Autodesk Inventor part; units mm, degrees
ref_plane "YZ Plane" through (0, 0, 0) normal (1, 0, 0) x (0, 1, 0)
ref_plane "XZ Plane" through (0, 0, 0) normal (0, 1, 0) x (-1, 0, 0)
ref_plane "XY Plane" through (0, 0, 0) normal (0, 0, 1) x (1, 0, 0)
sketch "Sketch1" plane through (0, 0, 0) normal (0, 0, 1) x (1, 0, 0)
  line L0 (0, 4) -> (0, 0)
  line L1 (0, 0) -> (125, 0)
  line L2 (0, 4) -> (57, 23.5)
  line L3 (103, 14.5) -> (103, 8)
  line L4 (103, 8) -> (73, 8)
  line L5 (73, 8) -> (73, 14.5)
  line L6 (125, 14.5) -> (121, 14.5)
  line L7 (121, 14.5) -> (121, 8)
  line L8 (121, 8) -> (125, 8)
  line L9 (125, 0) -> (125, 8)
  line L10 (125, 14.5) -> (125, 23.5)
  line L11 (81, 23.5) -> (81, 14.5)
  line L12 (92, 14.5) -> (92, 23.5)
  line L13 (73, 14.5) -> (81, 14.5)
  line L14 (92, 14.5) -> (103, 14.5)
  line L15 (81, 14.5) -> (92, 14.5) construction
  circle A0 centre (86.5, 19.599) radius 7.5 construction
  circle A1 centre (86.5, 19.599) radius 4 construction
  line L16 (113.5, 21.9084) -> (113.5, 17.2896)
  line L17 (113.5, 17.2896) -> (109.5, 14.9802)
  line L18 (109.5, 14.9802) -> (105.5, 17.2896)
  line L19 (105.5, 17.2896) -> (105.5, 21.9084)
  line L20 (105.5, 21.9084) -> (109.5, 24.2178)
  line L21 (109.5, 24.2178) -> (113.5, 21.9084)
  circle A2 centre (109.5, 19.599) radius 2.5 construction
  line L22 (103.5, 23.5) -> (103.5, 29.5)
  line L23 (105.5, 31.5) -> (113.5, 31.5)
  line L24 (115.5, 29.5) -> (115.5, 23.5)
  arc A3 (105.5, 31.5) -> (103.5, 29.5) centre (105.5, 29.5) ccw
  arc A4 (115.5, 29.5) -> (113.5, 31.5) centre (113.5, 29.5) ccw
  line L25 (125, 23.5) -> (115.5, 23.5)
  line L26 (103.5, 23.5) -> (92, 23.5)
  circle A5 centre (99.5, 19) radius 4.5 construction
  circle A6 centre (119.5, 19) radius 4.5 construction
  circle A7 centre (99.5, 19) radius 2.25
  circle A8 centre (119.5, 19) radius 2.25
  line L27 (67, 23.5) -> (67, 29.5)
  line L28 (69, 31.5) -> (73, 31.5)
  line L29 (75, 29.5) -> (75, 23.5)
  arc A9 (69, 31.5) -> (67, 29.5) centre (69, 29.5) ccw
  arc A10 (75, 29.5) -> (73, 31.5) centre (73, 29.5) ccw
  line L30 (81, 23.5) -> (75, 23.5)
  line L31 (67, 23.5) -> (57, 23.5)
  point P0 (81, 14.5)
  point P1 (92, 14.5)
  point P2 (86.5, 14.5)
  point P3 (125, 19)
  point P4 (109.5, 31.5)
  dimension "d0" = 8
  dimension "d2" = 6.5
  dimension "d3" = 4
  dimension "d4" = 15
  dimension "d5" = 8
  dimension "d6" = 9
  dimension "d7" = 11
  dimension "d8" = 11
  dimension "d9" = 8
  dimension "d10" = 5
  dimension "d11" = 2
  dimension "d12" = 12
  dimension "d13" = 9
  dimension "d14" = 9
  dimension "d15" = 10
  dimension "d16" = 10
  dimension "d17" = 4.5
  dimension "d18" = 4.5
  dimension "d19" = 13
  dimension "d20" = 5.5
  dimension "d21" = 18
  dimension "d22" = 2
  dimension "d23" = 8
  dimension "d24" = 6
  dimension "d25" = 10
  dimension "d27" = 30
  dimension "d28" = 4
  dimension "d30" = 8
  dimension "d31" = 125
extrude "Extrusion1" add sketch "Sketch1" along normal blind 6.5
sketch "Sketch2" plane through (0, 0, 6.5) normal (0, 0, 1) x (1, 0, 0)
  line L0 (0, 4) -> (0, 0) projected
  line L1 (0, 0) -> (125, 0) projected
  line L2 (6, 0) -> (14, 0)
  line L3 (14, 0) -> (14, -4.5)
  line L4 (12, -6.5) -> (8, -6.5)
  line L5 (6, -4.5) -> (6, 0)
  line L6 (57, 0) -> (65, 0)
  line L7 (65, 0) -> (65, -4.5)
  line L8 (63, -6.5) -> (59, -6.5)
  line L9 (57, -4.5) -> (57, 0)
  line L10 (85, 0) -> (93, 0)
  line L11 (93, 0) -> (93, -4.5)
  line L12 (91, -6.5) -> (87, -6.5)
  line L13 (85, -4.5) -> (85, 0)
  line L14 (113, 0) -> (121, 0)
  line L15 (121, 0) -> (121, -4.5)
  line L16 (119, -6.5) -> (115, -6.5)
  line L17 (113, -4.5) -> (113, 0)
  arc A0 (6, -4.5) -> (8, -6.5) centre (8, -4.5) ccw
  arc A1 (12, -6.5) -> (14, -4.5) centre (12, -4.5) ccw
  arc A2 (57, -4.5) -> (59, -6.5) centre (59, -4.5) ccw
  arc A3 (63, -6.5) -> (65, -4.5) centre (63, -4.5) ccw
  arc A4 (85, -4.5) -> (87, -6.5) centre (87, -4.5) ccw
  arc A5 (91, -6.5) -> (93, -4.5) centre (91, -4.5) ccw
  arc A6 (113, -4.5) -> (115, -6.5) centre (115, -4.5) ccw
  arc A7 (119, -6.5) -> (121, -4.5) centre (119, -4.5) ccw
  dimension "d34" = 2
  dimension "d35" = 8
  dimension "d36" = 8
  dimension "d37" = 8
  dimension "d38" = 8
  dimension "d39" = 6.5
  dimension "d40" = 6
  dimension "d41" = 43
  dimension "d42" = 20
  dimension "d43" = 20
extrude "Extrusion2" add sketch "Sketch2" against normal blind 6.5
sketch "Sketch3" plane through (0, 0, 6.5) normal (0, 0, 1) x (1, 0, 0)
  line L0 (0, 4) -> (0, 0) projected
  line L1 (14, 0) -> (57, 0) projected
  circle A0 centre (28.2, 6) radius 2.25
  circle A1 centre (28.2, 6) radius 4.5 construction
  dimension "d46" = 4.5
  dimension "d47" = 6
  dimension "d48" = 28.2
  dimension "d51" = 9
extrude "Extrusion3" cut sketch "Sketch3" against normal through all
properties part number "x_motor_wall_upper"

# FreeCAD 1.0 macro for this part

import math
import FreeCAD as App
import Part
import Sketcher

V = App.Vector
Q = App.Units.Quantity

doc = App.newDocument("Part")
params = doc.addObject("Spreadsheet::Sheet", "Params")
for row, (alias, value) in enumerate([
    ("sketch1_radius", "2 mm"),
    ("sketch1_diameter", "4.5 mm"),
    ("sketch1_width", "125 mm"),
    ("sketch1_width2", "4 mm"),
    ("sketch1_width3", "8 mm"),
    ("pad1_length", "6.5 mm"),
    ("sketch2_radius", "2 mm"),
    ("sketch2_width", "8 mm"),
    ("pad2_length", "6.5 mm"),
    ("sketch3_diameter", "4.5 mm"),
], start=1):
    params.set(f"A{row}", alias)
    params.set(f"B{row}", "=" + value)
    params.setAlias(f"B{row}", alias)

body = doc.addObject("PartDesign::Body", "Body")

sketch1 = body.newObject("Sketcher::SketchObject", "Sketch")
sketch1.AttachmentSupport = (doc.getObject("XY_Plane"), [""])
sketch1.MapMode = "FlatFace"
sketch1.addGeometry(Part.LineSegment(V(57, 23.5, 0), V(0, 4, 0)), False)
sketch1.addGeometry(Part.LineSegment(V(0, 4, 0), V(0, 0, 0)), False)
sketch1.addGeometry(Part.LineSegment(V(0, 0, 0), V(125, 0, 0)), False)
sketch1.addGeometry(Part.LineSegment(V(125, 0, 0), V(125, 8, 0)), False)
sketch1.addGeometry(Part.LineSegment(V(125, 8, 0), V(121, 8, 0)), False)
sketch1.addGeometry(Part.LineSegment(V(121, 8, 0), V(121, 14.5, 0)), False)
sketch1.addGeometry(Part.LineSegment(V(121, 14.5, 0), V(125, 14.5, 0)), False)
sketch1.addGeometry(Part.LineSegment(V(125, 14.5, 0), V(125, 23.5, 0)), False)
sketch1.addGeometry(Part.LineSegment(V(125, 23.5, 0), V(115.5, 23.5, 0)), False)
sketch1.addGeometry(Part.LineSegment(V(115.5, 23.5, 0), V(115.5, 29.5, 0)), False)
sketch1.addGeometry(Part.ArcOfCircle(Part.Circle(V(113.5, 29.5, 0), V(0, 0, 1), 2), math.radians(0), math.radians(90)), False)
sketch1.addGeometry(Part.LineSegment(V(113.5, 31.5, 0), V(105.5, 31.5, 0)), False)
sketch1.addGeometry(Part.ArcOfCircle(Part.Circle(V(105.5, 29.5, 0), V(0, 0, 1), 2), math.radians(90), math.radians(180)), False)
sketch1.addGeometry(Part.LineSegment(V(103.5, 29.5, 0), V(103.5, 23.5, 0)), False)
sketch1.addGeometry(Part.LineSegment(V(103.5, 23.5, 0), V(92, 23.5, 0)), False)
sketch1.addGeometry(Part.LineSegment(V(92, 23.5, 0), V(92, 14.5, 0)), False)
sketch1.addGeometry(Part.LineSegment(V(92, 14.5, 0), V(103, 14.5, 0)), False)
sketch1.addGeometry(Part.LineSegment(V(103, 14.5, 0), V(103, 8, 0)), False)
sketch1.addGeometry(Part.LineSegment(V(103, 8, 0), V(73, 8, 0)), False)
sketch1.addGeometry(Part.LineSegment(V(73, 8, 0), V(73, 14.5, 0)), False)
sketch1.addGeometry(Part.LineSegment(V(73, 14.5, 0), V(81, 14.5, 0)), False)
sketch1.addGeometry(Part.LineSegment(V(81, 14.5, 0), V(81, 23.5, 0)), False)
sketch1.addGeometry(Part.LineSegment(V(81, 23.5, 0), V(75, 23.5, 0)), False)
sketch1.addGeometry(Part.LineSegment(V(75, 23.5, 0), V(75, 29.5, 0)), False)
sketch1.addGeometry(Part.ArcOfCircle(Part.Circle(V(73, 29.5, 0), V(0, 0, 1), 2), math.radians(0), math.radians(90)), False)
sketch1.addGeometry(Part.LineSegment(V(73, 31.5, 0), V(69, 31.5, 0)), False)
sketch1.addGeometry(Part.ArcOfCircle(Part.Circle(V(69, 29.5, 0), V(0, 0, 1), 2), math.radians(90), math.radians(180)), False)
sketch1.addGeometry(Part.LineSegment(V(67, 29.5, 0), V(67, 23.5, 0)), False)
sketch1.addGeometry(Part.LineSegment(V(67, 23.5, 0), V(57, 23.5, 0)), False)
sketch1.addGeometry(Part.Circle(V(99.5, 19, 0), V(0, 0, 1), 2.2), False)
sketch1.addGeometry(Part.LineSegment(V(109.5, 24.2, 0), V(113.5, 21.9, 0)), False)
sketch1.addGeometry(Part.LineSegment(V(113.5, 21.9, 0), V(113.5, 17.3, 0)), False)
sketch1.addGeometry(Part.LineSegment(V(113.5, 17.3, 0), V(109.5, 15, 0)), False)
sketch1.addGeometry(Part.LineSegment(V(109.5, 15, 0), V(105.5, 17.3, 0)), False)
sketch1.addGeometry(Part.LineSegment(V(105.5, 17.3, 0), V(105.5, 21.9, 0)), False)
sketch1.addGeometry(Part.LineSegment(V(105.5, 21.9, 0), V(109.5, 24.2, 0)), False)
sketch1.addGeometry(Part.Circle(V(119.5, 19, 0), V(0, 0, 1), 2.2), False)
sketch1.addConstraint(Sketcher.Constraint("Coincident", 0, 2, 1, 1))
sketch1.addConstraint(Sketcher.Constraint("Coincident", 1, 2, 2, 1))
sketch1.addConstraint(Sketcher.Constraint("Coincident", 2, 2, 3, 1))
sketch1.addConstraint(Sketcher.Constraint("Coincident", 3, 2, 4, 1))
sketch1.addConstraint(Sketcher.Constraint("Coincident", 4, 2, 5, 1))
sketch1.addConstraint(Sketcher.Constraint("Coincident", 5, 2, 6, 1))
sketch1.addConstraint(Sketcher.Constraint("Coincident", 6, 2, 7, 1))
sketch1.addConstraint(Sketcher.Constraint("Coincident", 7, 2, 8, 1))
sketch1.addConstraint(Sketcher.Constraint("Coincident", 8, 2, 9, 1))
sketch1.addConstraint(Sketcher.Constraint("Tangent", 9, 2, 10, 1))
sketch1.addConstraint(Sketcher.Constraint("Tangent", 10, 2, 11, 1))
sketch1.addConstraint(Sketcher.Constraint("Tangent", 11, 2, 12, 1))
sketch1.addConstraint(Sketcher.Constraint("Tangent", 12, 2, 13, 1))
sketch1.addConstraint(Sketcher.Constraint("Coincident", 13, 2, 14, 1))
sketch1.addConstraint(Sketcher.Constraint("Coincident", 14, 2, 15, 1))
sketch1.addConstraint(Sketcher.Constraint("Coincident", 15, 2, 16, 1))
sketch1.addConstraint(Sketcher.Constraint("Coincident", 16, 2, 17, 1))
sketch1.addConstraint(Sketcher.Constraint("Coincident", 17, 2, 18, 1))
sketch1.addConstraint(Sketcher.Constraint("Coincident", 18, 2, 19, 1))
sketch1.addConstraint(Sketcher.Constraint("Coincident", 19, 2, 20, 1))
sketch1.addConstraint(Sketcher.Constraint("Coincident", 20, 2, 21, 1))
sketch1.addConstraint(Sketcher.Constraint("Coincident", 21, 2, 22, 1))
sketch1.addConstraint(Sketcher.Constraint("Coincident", 22, 2, 23, 1))
sketch1.addConstraint(Sketcher.Constraint("Tangent", 23, 2, 24, 1))
sketch1.addConstraint(Sketcher.Constraint("Tangent", 24, 2, 25, 1))
sketch1.addConstraint(Sketcher.Constraint("Tangent", 25, 2, 26, 1))
sketch1.addConstraint(Sketcher.Constraint("Tangent", 26, 2, 27, 1))
sketch1.addConstraint(Sketcher.Constraint("Coincident", 27, 2, 28, 1))
sketch1.addConstraint(Sketcher.Constraint("Coincident", 28, 2, 0, 1))
sketch1.addConstraint(Sketcher.Constraint("Coincident", 30, 2, 31, 1))
sketch1.addConstraint(Sketcher.Constraint("Coincident", 31, 2, 32, 1))
sketch1.addConstraint(Sketcher.Constraint("Coincident", 32, 2, 33, 1))
sketch1.addConstraint(Sketcher.Constraint("Coincident", 33, 2, 34, 1))
sketch1.addConstraint(Sketcher.Constraint("Coincident", 34, 2, 35, 1))
sketch1.addConstraint(Sketcher.Constraint("Coincident", 35, 2, 30, 1))
sketch1.addConstraint(Sketcher.Constraint("Vertical", 1))
sketch1.addConstraint(Sketcher.Constraint("Horizontal", 2))
sketch1.addConstraint(Sketcher.Constraint("Vertical", 3))
sketch1.addConstraint(Sketcher.Constraint("Horizontal", 4))
sketch1.addConstraint(Sketcher.Constraint("Vertical", 5))
sketch1.addConstraint(Sketcher.Constraint("Horizontal", 6))
sketch1.addConstraint(Sketcher.Constraint("Vertical", 7))
sketch1.addConstraint(Sketcher.Constraint("Horizontal", 8))
sketch1.addConstraint(Sketcher.Constraint("Vertical", 9))
sketch1.addConstraint(Sketcher.Constraint("Horizontal", 11))
sketch1.addConstraint(Sketcher.Constraint("Vertical", 13))
sketch1.addConstraint(Sketcher.Constraint("Horizontal", 14))
sketch1.addConstraint(Sketcher.Constraint("Vertical", 15))
sketch1.addConstraint(Sketcher.Constraint("Horizontal", 16))
sketch1.addConstraint(Sketcher.Constraint("Vertical", 17))
sketch1.addConstraint(Sketcher.Constraint("Horizontal", 18))
sketch1.addConstraint(Sketcher.Constraint("Vertical", 19))
sketch1.addConstraint(Sketcher.Constraint("Horizontal", 20))
sketch1.addConstraint(Sketcher.Constraint("Vertical", 21))
sketch1.addConstraint(Sketcher.Constraint("Horizontal", 22))
sketch1.addConstraint(Sketcher.Constraint("Vertical", 23))
sketch1.addConstraint(Sketcher.Constraint("Horizontal", 25))
sketch1.addConstraint(Sketcher.Constraint("Vertical", 27))
sketch1.addConstraint(Sketcher.Constraint("Horizontal", 28))
sketch1.addConstraint(Sketcher.Constraint("Vertical", 31))
sketch1.addConstraint(Sketcher.Constraint("Vertical", 34))
sketch1.addConstraint(Sketcher.Constraint("Coincident", 1, 2, -1, 1))
sketch1.addConstraint(Sketcher.Constraint("Equal", 10, 12))
sketch1.addConstraint(Sketcher.Constraint("Equal", 12, 24))
sketch1.addConstraint(Sketcher.Constraint("Equal", 24, 26))
sketch1.addConstraint(Sketcher.Constraint("Equal", 29, 36))
sketch1.addConstraint(Sketcher.Constraint("Parallel", 30, 33))
sketch1.addConstraint(Sketcher.Constraint("Parallel", 32, 35))
sketch1.addConstraint(Sketcher.Constraint("Horizontal", 12, 3, 24, 3))
sketch1.addConstraint(Sketcher.Constraint("Horizontal", 29, 3, 36, 3))
sketch1.addConstraint(Sketcher.Constraint("Horizontal", 8, 2, 13, 2))
sketch1.addConstraint(Sketcher.Constraint("Horizontal", 6, 2, 15, 2))
sketch1.addConstraint(Sketcher.Constraint("Horizontal", 4, 2, 17, 2))
sketch1.addConstraint(Sketcher.Constraint("Horizontal", 16, 2, 19, 2))
sketch1.addConstraint(Sketcher.Constraint("Horizontal", 14, 2, 21, 2))
sketch1.addConstraint(Sketcher.Constraint("Horizontal", 22, 2, 27, 2))
sketch1.addConstraint(Sketcher.Constraint("Horizontal", 31, 2, 33, 2))
sketch1.addConstraint(Sketcher.Constraint("Horizontal", 30, 2, 34, 2))
sketch1.addConstraint(Sketcher.Constraint("Vertical", 3, 2, 6, 2))
sketch1.addConstraint(Sketcher.Constraint("Vertical", 24, 3, 18, 2))
sketch1.addConstraint(Sketcher.Constraint("Vertical", 10, 2, 30, 2))
sketch1.addConstraint(Sketcher.Constraint("Vertical", 11, 2, 33, 2))
sketch1.addConstraint(Sketcher.Constraint("Vertical", 32, 2, 35, 2))
sketch1.addConstraint(Sketcher.Constraint("Equal", 11, 20))
sketch1.addConstraint(Sketcher.Constraint("Equal", 6, 25))
sketch1.addConstraint(Sketcher.Constraint("Equal", 25, 1))
sketch1.addConstraint(Sketcher.Constraint("Equal", 20, 3))
sketch1.addConstraint(Sketcher.Constraint("Equal", 22, 9))
sketch1.addConstraint(Sketcher.Constraint("Radius", 10, Q("2 mm")))
sketch1.addConstraint(Sketcher.Constraint("Diameter", 29, Q("4.5 mm")))
sketch1.addConstraint(Sketcher.Constraint("DistanceX", 2, 1, 2, 2, Q("125 mm")))
sketch1.addConstraint(Sketcher.Constraint("DistanceX", 4, 2, 4, 1, Q("4 mm")))
sketch1.addConstraint(Sketcher.Constraint("DistanceX", 11, 2, 11, 1, Q("8 mm")))
sketch1.addConstraint(Sketcher.Constraint("DistanceX", 16, 1, 16, 2, Q("11 mm")))
sketch1.addConstraint(Sketcher.Constraint("DistanceX", 18, 2, 18, 1, Q("30 mm")))
sketch1.addConstraint(Sketcher.Constraint("DistanceX", 28, 2, 28, 1, Q("10 mm")))
sketch1.addConstraint(Sketcher.Constraint("DistanceY", 7, 1, 7, 2, Q("9 mm")))
sketch1.addConstraint(Sketcher.Constraint("Angle", 30, Q("-30 deg")))
sketch1.addConstraint(Sketcher.Constraint("DistanceY", 5, 1, 5, 2, Q("6.5 mm")))
sketch1.addConstraint(Sketcher.Constraint("DistanceX", 29, 3, 12, 3, Q("6 mm")))
sketch1.addConstraint(Sketcher.Constraint("DistanceX", 10, 3, 36, 3, Q("6 mm")))
sketch1.addConstraint(Sketcher.Constraint("DistanceY", 0, 2, 29, 3, Q("15 mm")))
sketch1.addConstraint(Sketcher.Constraint("DistanceX", 17, 2, 4, 2, Q("18 mm")))
sketch1.addConstraint(Sketcher.Constraint("DistanceX", 36, 3, 2, 2, Q("5.5 mm")))
sketch1.addConstraint(Sketcher.Constraint("DistanceY", 31, 2, 31, 1, Q("4.6188 mm")))
sketch1.addConstraint(Sketcher.Constraint("DistanceY", -1, 1, 30, 2, Q("21.9084 mm")))
sketch1.setExpression("Constraints[88]", "Params.sketch1_radius")
sketch1.setExpression("Constraints[89]", "Params.sketch1_diameter")
sketch1.setExpression("Constraints[90]", "Params.sketch1_width")
sketch1.setExpression("Constraints[91]", "Params.sketch1_width2")
sketch1.setExpression("Constraints[92]", "Params.sketch1_width3")
pad1 = body.newObject("PartDesign::Pad", "Pad")
pad1.Profile = sketch1
pad1.setExpression("Length", "Params.pad1_length")

sketch2 = body.newObject("Sketcher::SketchObject", "Sketch001")
sketch2.AttachmentSupport = (doc.getObject("XY_Plane"), [""])
sketch2.MapMode = "FlatFace"
sketch2.AttachmentOffset = App.Placement(V(0, 0, 6.5), App.Rotation())
sketch2.addGeometry(Part.LineSegment(V(121, 0, 0), V(113, 0, 0)), False)
sketch2.addGeometry(Part.LineSegment(V(113, 0, 0), V(113, -4.5, 0)), False)
sketch2.addGeometry(Part.ArcOfCircle(Part.Circle(V(115, -4.5, 0), V(0, 0, 1), 2), math.radians(180), math.radians(270)), False)
sketch2.addGeometry(Part.LineSegment(V(115, -6.5, 0), V(119, -6.5, 0)), False)
sketch2.addGeometry(Part.ArcOfCircle(Part.Circle(V(119, -4.5, 0), V(0, 0, 1), 2), math.radians(-90), math.radians(0)), False)
sketch2.addGeometry(Part.LineSegment(V(121, -4.5, 0), V(121, 0, 0)), False)
sketch2.addGeometry(Part.LineSegment(V(93, 0, 0), V(85, 0, 0)), False)
sketch2.addGeometry(Part.LineSegment(V(85, 0, 0), V(85, -4.5, 0)), False)
sketch2.addGeometry(Part.ArcOfCircle(Part.Circle(V(87, -4.5, 0), V(0, 0, 1), 2), math.radians(180), math.radians(270)), False)
sketch2.addGeometry(Part.LineSegment(V(87, -6.5, 0), V(91, -6.5, 0)), False)
sketch2.addGeometry(Part.ArcOfCircle(Part.Circle(V(91, -4.5, 0), V(0, 0, 1), 2), math.radians(-90), math.radians(0)), False)
sketch2.addGeometry(Part.LineSegment(V(93, -4.5, 0), V(93, 0, 0)), False)
sketch2.addGeometry(Part.LineSegment(V(65, 0, 0), V(57, 0, 0)), False)
sketch2.addGeometry(Part.LineSegment(V(57, 0, 0), V(57, -4.5, 0)), False)
sketch2.addGeometry(Part.ArcOfCircle(Part.Circle(V(59, -4.5, 0), V(0, 0, 1), 2), math.radians(180), math.radians(270)), False)
sketch2.addGeometry(Part.LineSegment(V(59, -6.5, 0), V(63, -6.5, 0)), False)
sketch2.addGeometry(Part.ArcOfCircle(Part.Circle(V(63, -4.5, 0), V(0, 0, 1), 2), math.radians(-90), math.radians(0)), False)
sketch2.addGeometry(Part.LineSegment(V(65, -4.5, 0), V(65, 0, 0)), False)
sketch2.addGeometry(Part.LineSegment(V(14, 0, 0), V(6, 0, 0)), False)
sketch2.addGeometry(Part.LineSegment(V(6, 0, 0), V(6, -4.5, 0)), False)
sketch2.addGeometry(Part.ArcOfCircle(Part.Circle(V(8, -4.5, 0), V(0, 0, 1), 2), math.radians(180), math.radians(270)), False)
sketch2.addGeometry(Part.LineSegment(V(8, -6.5, 0), V(12, -6.5, 0)), False)
sketch2.addGeometry(Part.ArcOfCircle(Part.Circle(V(12, -4.5, 0), V(0, 0, 1), 2), math.radians(-90), math.radians(0)), False)
sketch2.addGeometry(Part.LineSegment(V(14, -4.5, 0), V(14, 0, 0)), False)
sketch2.addConstraint(Sketcher.Constraint("Coincident", 0, 2, 1, 1))
sketch2.addConstraint(Sketcher.Constraint("Tangent", 1, 2, 2, 1))
sketch2.addConstraint(Sketcher.Constraint("Tangent", 2, 2, 3, 1))
sketch2.addConstraint(Sketcher.Constraint("Tangent", 3, 2, 4, 1))
sketch2.addConstraint(Sketcher.Constraint("Tangent", 4, 2, 5, 1))
sketch2.addConstraint(Sketcher.Constraint("Coincident", 5, 2, 0, 1))
sketch2.addConstraint(Sketcher.Constraint("Coincident", 6, 2, 7, 1))
sketch2.addConstraint(Sketcher.Constraint("Tangent", 7, 2, 8, 1))
sketch2.addConstraint(Sketcher.Constraint("Tangent", 8, 2, 9, 1))
sketch2.addConstraint(Sketcher.Constraint("Tangent", 9, 2, 10, 1))
sketch2.addConstraint(Sketcher.Constraint("Tangent", 10, 2, 11, 1))
sketch2.addConstraint(Sketcher.Constraint("Coincident", 11, 2, 6, 1))
sketch2.addConstraint(Sketcher.Constraint("Coincident", 12, 2, 13, 1))
sketch2.addConstraint(Sketcher.Constraint("Tangent", 13, 2, 14, 1))
sketch2.addConstraint(Sketcher.Constraint("Tangent", 14, 2, 15, 1))
sketch2.addConstraint(Sketcher.Constraint("Tangent", 15, 2, 16, 1))
sketch2.addConstraint(Sketcher.Constraint("Tangent", 16, 2, 17, 1))
sketch2.addConstraint(Sketcher.Constraint("Coincident", 17, 2, 12, 1))
sketch2.addConstraint(Sketcher.Constraint("Coincident", 18, 2, 19, 1))
sketch2.addConstraint(Sketcher.Constraint("Tangent", 19, 2, 20, 1))
sketch2.addConstraint(Sketcher.Constraint("Tangent", 20, 2, 21, 1))
sketch2.addConstraint(Sketcher.Constraint("Tangent", 21, 2, 22, 1))
sketch2.addConstraint(Sketcher.Constraint("Tangent", 22, 2, 23, 1))
sketch2.addConstraint(Sketcher.Constraint("Coincident", 23, 2, 18, 1))
sketch2.addConstraint(Sketcher.Constraint("Horizontal", 0))
sketch2.addConstraint(Sketcher.Constraint("Vertical", 1))
sketch2.addConstraint(Sketcher.Constraint("Horizontal", 3))
sketch2.addConstraint(Sketcher.Constraint("Vertical", 5))
sketch2.addConstraint(Sketcher.Constraint("Horizontal", 6))
sketch2.addConstraint(Sketcher.Constraint("Vertical", 7))
sketch2.addConstraint(Sketcher.Constraint("Horizontal", 9))
sketch2.addConstraint(Sketcher.Constraint("Vertical", 11))
sketch2.addConstraint(Sketcher.Constraint("Horizontal", 12))
sketch2.addConstraint(Sketcher.Constraint("Vertical", 13))
sketch2.addConstraint(Sketcher.Constraint("Horizontal", 15))
sketch2.addConstraint(Sketcher.Constraint("Vertical", 17))
sketch2.addConstraint(Sketcher.Constraint("Horizontal", 18))
sketch2.addConstraint(Sketcher.Constraint("Vertical", 19))
sketch2.addConstraint(Sketcher.Constraint("Horizontal", 21))
sketch2.addConstraint(Sketcher.Constraint("Vertical", 23))
sketch2.addConstraint(Sketcher.Constraint("Equal", 2, 4))
sketch2.addConstraint(Sketcher.Constraint("Equal", 4, 8))
sketch2.addConstraint(Sketcher.Constraint("Equal", 8, 10))
sketch2.addConstraint(Sketcher.Constraint("Equal", 10, 14))
sketch2.addConstraint(Sketcher.Constraint("Equal", 14, 16))
sketch2.addConstraint(Sketcher.Constraint("Equal", 16, 20))
sketch2.addConstraint(Sketcher.Constraint("Equal", 20, 22))
sketch2.addConstraint(Sketcher.Constraint("PointOnObject", 0, 2, -1))
sketch2.addConstraint(Sketcher.Constraint("PointOnObject", 6, 2, -1))
sketch2.addConstraint(Sketcher.Constraint("PointOnObject", 12, 2, -1))
sketch2.addConstraint(Sketcher.Constraint("PointOnObject", 18, 2, -1))
sketch2.addConstraint(Sketcher.Constraint("Horizontal", 4, 3, 8, 3))
sketch2.addConstraint(Sketcher.Constraint("Horizontal", 10, 3, 14, 3))
sketch2.addConstraint(Sketcher.Constraint("Horizontal", 16, 3, 20, 3))
sketch2.addConstraint(Sketcher.Constraint("Equal", 0, 6))
sketch2.addConstraint(Sketcher.Constraint("Equal", 6, 12))
sketch2.addConstraint(Sketcher.Constraint("Equal", 12, 18))
sketch2.addConstraint(Sketcher.Constraint("Radius", 2, Q("2 mm")))
sketch2.addConstraint(Sketcher.Constraint("DistanceX", 0, 2, 0, 1, Q("8 mm")))
sketch2.addConstraint(Sketcher.Constraint("DistanceX", -1, 1, 20, 3, Q("8 mm")))
sketch2.addConstraint(Sketcher.Constraint("DistanceY", 2, 2, -1, 1, Q("6.5 mm")))
sketch2.addConstraint(Sketcher.Constraint("DistanceX", -1, 1, 2, 3, Q("115 mm")))
sketch2.addConstraint(Sketcher.Constraint("DistanceX", -1, 1, 8, 3, Q("87 mm")))
sketch2.addConstraint(Sketcher.Constraint("DistanceX", -1, 1, 14, 3, Q("59 mm")))
sketch2.setExpression("Constraints[57]", "Params.sketch2_radius")
sketch2.setExpression("Constraints[58]", "Params.sketch2_width")
pad2 = body.newObject("PartDesign::Pad", "Pad001")
pad2.Profile = sketch2
pad2.setExpression("Length", "Params.pad2_length")
pad2.Reversed = True

sketch3 = body.newObject("Sketcher::SketchObject", "Sketch002")
sketch3.AttachmentSupport = (doc.getObject("XY_Plane"), [""])
sketch3.MapMode = "FlatFace"
sketch3.AttachmentOffset = App.Placement(V(0, 0, 6.5), App.Rotation())
sketch3.addGeometry(Part.Circle(V(28.2, 6, 0), V(0, 0, 1), 2.2), False)
sketch3.addConstraint(Sketcher.Constraint("Diameter", 0, Q("4.5 mm")))
sketch3.addConstraint(Sketcher.Constraint("DistanceY", -1, 1, 0, 3, Q("6 mm")))
sketch3.addConstraint(Sketcher.Constraint("DistanceX", -1, 1, 0, 3, Q("28.2 mm")))
sketch3.setExpression("Constraints[0]", "Params.sketch3_diameter")
pocket1 = body.newObject("PartDesign::Pocket", "Pocket")
pocket1.Profile = sketch3
pocket1.Type = "ThroughAll"

doc.recompute()
